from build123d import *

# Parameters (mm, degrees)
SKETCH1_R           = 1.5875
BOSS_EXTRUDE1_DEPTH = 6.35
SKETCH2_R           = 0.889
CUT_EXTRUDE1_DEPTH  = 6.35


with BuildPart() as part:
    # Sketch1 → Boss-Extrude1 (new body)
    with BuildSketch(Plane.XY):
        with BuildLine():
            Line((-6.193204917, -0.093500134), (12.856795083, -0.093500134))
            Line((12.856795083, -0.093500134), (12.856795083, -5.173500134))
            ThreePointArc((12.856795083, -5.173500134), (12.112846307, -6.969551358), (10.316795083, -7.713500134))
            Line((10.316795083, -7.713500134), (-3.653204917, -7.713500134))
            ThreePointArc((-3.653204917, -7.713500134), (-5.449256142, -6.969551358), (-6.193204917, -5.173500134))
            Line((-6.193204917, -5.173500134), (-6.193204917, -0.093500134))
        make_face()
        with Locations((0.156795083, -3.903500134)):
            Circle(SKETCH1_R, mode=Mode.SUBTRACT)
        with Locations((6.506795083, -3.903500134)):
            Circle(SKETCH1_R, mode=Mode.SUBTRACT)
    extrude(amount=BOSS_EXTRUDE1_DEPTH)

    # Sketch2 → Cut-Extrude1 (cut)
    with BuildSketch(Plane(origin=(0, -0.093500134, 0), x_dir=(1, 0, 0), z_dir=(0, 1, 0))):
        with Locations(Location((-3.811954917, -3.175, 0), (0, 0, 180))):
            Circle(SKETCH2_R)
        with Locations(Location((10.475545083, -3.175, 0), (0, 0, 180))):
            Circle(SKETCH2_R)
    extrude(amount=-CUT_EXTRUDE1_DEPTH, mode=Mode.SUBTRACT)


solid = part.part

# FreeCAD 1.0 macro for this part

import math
import FreeCAD as App
import Part
import Sketcher

V = App.Vector
Q = App.Units.Quantity

doc = App.newDocument("Part")
body = doc.addObject("PartDesign::Body", "Body")

sketch1 = doc.addObject("Sketcher::SketchObject", "Sketch")
body.addObject(sketch1)
sketch1.AttachmentSupport = (doc.XY_Plane, [""])
sketch1.MapMode = "FlatFace"
sketch1.addGeometry(Part.LineSegment(V(12.9, -0.1, 0), V(-6.2, -0.1, 0)), False)
sketch1.addGeometry(Part.LineSegment(V(-6.2, -0.1, 0), V(-6.2, -5.2, 0)), False)
sketch1.addGeometry(Part.ArcOfCircle(Part.Circle(V(-3.7, -5.2, 0), V(0, 0, 1), 2.5), math.radians(180), math.radians(270)), False)
sketch1.addGeometry(Part.LineSegment(V(-3.7, -7.7, 0), V(10.3, -7.7, 0)), False)
sketch1.addGeometry(Part.ArcOfCircle(Part.Circle(V(10.3, -5.2, 0), V(0, 0, 1), 2.5), math.radians(-90), math.radians(0)), False)
sketch1.addGeometry(Part.LineSegment(V(12.9, -5.2, 0), V(12.9, -0.1, 0)), False)
sketch1.addGeometry(Part.Circle(V(6.5, -3.9, 0), V(0, 0, 1), 1.6), False)
sketch1.addGeometry(Part.Circle(V(0.2, -3.9, 0), V(0, 0, 1), 1.6), False)
sketch1.addConstraint(Sketcher.Constraint("Coincident", 0, 2, 1, 1))
sketch1.addConstraint(Sketcher.Constraint("Tangent", 1, 2, 2, 1))
sketch1.addConstraint(Sketcher.Constraint("Tangent", 2, 2, 3, 1))
sketch1.addConstraint(Sketcher.Constraint("Tangent", 3, 2, 4, 1))
sketch1.addConstraint(Sketcher.Constraint("Tangent", 4, 2, 5, 1))
sketch1.addConstraint(Sketcher.Constraint("Coincident", 5, 2, 0, 1))
sketch1.addConstraint(Sketcher.Constraint("Horizontal", 0))
sketch1.addConstraint(Sketcher.Constraint("Vertical", 1))
sketch1.addConstraint(Sketcher.Constraint("Horizontal", 3))
sketch1.addConstraint(Sketcher.Constraint("Vertical", 5))
sketch1.addConstraint(Sketcher.Constraint("Equal", 2, 4))
sketch1.addConstraint(Sketcher.Constraint("Equal", 6, 7))
sketch1.addConstraint(Sketcher.Constraint("Horizontal", 6, 3, 7, 3))
sketch1.addConstraint(Sketcher.Constraint("Radius", 2, Q("0.1 in")))
sketch1.addConstraint(Sketcher.Constraint("Diameter", 6, Q("0.125 in")))
sketch1.addConstraint(Sketcher.Constraint("DistanceY", 1, 2, 1, 1, Q("0.2 in")))
sketch1.addConstraint(Sketcher.Constraint("DistanceX", 0, 2, 0, 1, Q("0.75 in")))
sketch1.addConstraint(Sketcher.Constraint("DistanceX", 2, 3, 6, 3, Q("0.4 in")))
sketch1.addConstraint(Sketcher.Constraint("DistanceX", 7, 3, 4, 3, Q("0.4 in")))
sketch1.addConstraint(Sketcher.Constraint("DistanceY", 4, 3, 6, 3, Q("0.05 in")))
sketch1.addConstraint(Sketcher.Constraint("DistanceY", 2, 3, -1, 1, Q("5.1735 mm")))
sketch1.addConstraint(Sketcher.Constraint("DistanceX", 2, 3, -1, 1, Q("3.653205 mm")))
pad1 = doc.addObject("PartDesign::Pad", "Pad")
body.addObject(pad1)
pad1.Profile = sketch1
pad1.Length = Q("0.25 in")

sketch2 = doc.addObject("Sketcher::SketchObject", "Sketch001")
body.addObject(sketch2)
sketch2.AttachmentSupport = (doc.XZ_Plane, [""])
sketch2.MapMode = "FlatFace"
sketch2.AttachmentOffset = App.Placement(V(0, 0, 0.0935), App.Rotation())
sketch2.addGeometry(Part.Circle(V(-3.8, 3.2, 0), V(0, 0, 1), 0.9), False)
sketch2.addGeometry(Part.Circle(V(10.5, 3.2, 0), V(0, 0, 1), 0.9), False)
sketch2.addConstraint(Sketcher.Constraint("Equal", 0, 1))
sketch2.addConstraint(Sketcher.Constraint("Horizontal", 0, 3, 1, 3))
sketch2.addConstraint(Sketcher.Constraint("Diameter", 0, Q("0.07 in")))
sketch2.addConstraint(Sketcher.Constraint("DistanceY", -1, 1, 0, 3, Q("0.125 in")))
sketch2.addConstraint(Sketcher.Constraint("DistanceX", 0, 3, 1, 3, Q("0.5625 in")))
sketch2.addConstraint(Sketcher.Constraint("DistanceX", 0, 3, -1, 1, Q("3.811955 mm")))
pocket1 = doc.addObject("PartDesign::Pocket", "Pocket")
body.addObject(pocket1)
pocket1.Profile = sketch2
pocket1.Length = Q("0.25 in")
pocket1.Reversed = True

doc.recompute()
